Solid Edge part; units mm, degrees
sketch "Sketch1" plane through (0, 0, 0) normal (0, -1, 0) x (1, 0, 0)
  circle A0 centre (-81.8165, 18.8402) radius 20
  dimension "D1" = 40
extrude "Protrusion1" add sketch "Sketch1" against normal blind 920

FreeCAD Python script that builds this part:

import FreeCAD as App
import Part
import Sketcher

doc = App.newDocument("Part")
params = doc.addObject("Spreadsheet::Sheet", "Params")
for row, (alias, value) in enumerate([
    ("sketch1_diameter", "40 mm"),
    ("pad1_length", "920 mm"),
], start=1):
    params.set(f"A{row}", alias)
    params.set(f"B{row}", "=" + value)
    params.setAlias(f"B{row}", alias)

body = doc.addObject("PartDesign::Body", "Body")

sketch1 = body.newObject("Sketcher::SketchObject", "Sketch")
sketch1.AttachmentSupport = (doc.getObject("XZ_Plane"), [""])
sketch1.MapMode = "FlatFace"
sketch1.addGeometry(Part.Circle(App.Vector(-81.8165, 18.8402, 0), App.Vector(0, 0, 1), 20), False)
sketch1.addConstraint([
    Sketcher.Constraint("Diameter", 0, 40.0),
    Sketcher.Constraint("DistanceX", 0, 3, -1, 1, 81.8165),
    Sketcher.Constraint("DistanceY", -1, 1, 0, 3, 18.8402),
])
sketch1.setExpression("Constraints[0]", "Params.sketch1_diameter")
pad1 = body.newObject("PartDesign::Pad", "Pad")
pad1.Profile = sketch1
pad1.setExpression("Length", "Params.pad1_length")
pad1.Reversed = True

doc.recompute()
